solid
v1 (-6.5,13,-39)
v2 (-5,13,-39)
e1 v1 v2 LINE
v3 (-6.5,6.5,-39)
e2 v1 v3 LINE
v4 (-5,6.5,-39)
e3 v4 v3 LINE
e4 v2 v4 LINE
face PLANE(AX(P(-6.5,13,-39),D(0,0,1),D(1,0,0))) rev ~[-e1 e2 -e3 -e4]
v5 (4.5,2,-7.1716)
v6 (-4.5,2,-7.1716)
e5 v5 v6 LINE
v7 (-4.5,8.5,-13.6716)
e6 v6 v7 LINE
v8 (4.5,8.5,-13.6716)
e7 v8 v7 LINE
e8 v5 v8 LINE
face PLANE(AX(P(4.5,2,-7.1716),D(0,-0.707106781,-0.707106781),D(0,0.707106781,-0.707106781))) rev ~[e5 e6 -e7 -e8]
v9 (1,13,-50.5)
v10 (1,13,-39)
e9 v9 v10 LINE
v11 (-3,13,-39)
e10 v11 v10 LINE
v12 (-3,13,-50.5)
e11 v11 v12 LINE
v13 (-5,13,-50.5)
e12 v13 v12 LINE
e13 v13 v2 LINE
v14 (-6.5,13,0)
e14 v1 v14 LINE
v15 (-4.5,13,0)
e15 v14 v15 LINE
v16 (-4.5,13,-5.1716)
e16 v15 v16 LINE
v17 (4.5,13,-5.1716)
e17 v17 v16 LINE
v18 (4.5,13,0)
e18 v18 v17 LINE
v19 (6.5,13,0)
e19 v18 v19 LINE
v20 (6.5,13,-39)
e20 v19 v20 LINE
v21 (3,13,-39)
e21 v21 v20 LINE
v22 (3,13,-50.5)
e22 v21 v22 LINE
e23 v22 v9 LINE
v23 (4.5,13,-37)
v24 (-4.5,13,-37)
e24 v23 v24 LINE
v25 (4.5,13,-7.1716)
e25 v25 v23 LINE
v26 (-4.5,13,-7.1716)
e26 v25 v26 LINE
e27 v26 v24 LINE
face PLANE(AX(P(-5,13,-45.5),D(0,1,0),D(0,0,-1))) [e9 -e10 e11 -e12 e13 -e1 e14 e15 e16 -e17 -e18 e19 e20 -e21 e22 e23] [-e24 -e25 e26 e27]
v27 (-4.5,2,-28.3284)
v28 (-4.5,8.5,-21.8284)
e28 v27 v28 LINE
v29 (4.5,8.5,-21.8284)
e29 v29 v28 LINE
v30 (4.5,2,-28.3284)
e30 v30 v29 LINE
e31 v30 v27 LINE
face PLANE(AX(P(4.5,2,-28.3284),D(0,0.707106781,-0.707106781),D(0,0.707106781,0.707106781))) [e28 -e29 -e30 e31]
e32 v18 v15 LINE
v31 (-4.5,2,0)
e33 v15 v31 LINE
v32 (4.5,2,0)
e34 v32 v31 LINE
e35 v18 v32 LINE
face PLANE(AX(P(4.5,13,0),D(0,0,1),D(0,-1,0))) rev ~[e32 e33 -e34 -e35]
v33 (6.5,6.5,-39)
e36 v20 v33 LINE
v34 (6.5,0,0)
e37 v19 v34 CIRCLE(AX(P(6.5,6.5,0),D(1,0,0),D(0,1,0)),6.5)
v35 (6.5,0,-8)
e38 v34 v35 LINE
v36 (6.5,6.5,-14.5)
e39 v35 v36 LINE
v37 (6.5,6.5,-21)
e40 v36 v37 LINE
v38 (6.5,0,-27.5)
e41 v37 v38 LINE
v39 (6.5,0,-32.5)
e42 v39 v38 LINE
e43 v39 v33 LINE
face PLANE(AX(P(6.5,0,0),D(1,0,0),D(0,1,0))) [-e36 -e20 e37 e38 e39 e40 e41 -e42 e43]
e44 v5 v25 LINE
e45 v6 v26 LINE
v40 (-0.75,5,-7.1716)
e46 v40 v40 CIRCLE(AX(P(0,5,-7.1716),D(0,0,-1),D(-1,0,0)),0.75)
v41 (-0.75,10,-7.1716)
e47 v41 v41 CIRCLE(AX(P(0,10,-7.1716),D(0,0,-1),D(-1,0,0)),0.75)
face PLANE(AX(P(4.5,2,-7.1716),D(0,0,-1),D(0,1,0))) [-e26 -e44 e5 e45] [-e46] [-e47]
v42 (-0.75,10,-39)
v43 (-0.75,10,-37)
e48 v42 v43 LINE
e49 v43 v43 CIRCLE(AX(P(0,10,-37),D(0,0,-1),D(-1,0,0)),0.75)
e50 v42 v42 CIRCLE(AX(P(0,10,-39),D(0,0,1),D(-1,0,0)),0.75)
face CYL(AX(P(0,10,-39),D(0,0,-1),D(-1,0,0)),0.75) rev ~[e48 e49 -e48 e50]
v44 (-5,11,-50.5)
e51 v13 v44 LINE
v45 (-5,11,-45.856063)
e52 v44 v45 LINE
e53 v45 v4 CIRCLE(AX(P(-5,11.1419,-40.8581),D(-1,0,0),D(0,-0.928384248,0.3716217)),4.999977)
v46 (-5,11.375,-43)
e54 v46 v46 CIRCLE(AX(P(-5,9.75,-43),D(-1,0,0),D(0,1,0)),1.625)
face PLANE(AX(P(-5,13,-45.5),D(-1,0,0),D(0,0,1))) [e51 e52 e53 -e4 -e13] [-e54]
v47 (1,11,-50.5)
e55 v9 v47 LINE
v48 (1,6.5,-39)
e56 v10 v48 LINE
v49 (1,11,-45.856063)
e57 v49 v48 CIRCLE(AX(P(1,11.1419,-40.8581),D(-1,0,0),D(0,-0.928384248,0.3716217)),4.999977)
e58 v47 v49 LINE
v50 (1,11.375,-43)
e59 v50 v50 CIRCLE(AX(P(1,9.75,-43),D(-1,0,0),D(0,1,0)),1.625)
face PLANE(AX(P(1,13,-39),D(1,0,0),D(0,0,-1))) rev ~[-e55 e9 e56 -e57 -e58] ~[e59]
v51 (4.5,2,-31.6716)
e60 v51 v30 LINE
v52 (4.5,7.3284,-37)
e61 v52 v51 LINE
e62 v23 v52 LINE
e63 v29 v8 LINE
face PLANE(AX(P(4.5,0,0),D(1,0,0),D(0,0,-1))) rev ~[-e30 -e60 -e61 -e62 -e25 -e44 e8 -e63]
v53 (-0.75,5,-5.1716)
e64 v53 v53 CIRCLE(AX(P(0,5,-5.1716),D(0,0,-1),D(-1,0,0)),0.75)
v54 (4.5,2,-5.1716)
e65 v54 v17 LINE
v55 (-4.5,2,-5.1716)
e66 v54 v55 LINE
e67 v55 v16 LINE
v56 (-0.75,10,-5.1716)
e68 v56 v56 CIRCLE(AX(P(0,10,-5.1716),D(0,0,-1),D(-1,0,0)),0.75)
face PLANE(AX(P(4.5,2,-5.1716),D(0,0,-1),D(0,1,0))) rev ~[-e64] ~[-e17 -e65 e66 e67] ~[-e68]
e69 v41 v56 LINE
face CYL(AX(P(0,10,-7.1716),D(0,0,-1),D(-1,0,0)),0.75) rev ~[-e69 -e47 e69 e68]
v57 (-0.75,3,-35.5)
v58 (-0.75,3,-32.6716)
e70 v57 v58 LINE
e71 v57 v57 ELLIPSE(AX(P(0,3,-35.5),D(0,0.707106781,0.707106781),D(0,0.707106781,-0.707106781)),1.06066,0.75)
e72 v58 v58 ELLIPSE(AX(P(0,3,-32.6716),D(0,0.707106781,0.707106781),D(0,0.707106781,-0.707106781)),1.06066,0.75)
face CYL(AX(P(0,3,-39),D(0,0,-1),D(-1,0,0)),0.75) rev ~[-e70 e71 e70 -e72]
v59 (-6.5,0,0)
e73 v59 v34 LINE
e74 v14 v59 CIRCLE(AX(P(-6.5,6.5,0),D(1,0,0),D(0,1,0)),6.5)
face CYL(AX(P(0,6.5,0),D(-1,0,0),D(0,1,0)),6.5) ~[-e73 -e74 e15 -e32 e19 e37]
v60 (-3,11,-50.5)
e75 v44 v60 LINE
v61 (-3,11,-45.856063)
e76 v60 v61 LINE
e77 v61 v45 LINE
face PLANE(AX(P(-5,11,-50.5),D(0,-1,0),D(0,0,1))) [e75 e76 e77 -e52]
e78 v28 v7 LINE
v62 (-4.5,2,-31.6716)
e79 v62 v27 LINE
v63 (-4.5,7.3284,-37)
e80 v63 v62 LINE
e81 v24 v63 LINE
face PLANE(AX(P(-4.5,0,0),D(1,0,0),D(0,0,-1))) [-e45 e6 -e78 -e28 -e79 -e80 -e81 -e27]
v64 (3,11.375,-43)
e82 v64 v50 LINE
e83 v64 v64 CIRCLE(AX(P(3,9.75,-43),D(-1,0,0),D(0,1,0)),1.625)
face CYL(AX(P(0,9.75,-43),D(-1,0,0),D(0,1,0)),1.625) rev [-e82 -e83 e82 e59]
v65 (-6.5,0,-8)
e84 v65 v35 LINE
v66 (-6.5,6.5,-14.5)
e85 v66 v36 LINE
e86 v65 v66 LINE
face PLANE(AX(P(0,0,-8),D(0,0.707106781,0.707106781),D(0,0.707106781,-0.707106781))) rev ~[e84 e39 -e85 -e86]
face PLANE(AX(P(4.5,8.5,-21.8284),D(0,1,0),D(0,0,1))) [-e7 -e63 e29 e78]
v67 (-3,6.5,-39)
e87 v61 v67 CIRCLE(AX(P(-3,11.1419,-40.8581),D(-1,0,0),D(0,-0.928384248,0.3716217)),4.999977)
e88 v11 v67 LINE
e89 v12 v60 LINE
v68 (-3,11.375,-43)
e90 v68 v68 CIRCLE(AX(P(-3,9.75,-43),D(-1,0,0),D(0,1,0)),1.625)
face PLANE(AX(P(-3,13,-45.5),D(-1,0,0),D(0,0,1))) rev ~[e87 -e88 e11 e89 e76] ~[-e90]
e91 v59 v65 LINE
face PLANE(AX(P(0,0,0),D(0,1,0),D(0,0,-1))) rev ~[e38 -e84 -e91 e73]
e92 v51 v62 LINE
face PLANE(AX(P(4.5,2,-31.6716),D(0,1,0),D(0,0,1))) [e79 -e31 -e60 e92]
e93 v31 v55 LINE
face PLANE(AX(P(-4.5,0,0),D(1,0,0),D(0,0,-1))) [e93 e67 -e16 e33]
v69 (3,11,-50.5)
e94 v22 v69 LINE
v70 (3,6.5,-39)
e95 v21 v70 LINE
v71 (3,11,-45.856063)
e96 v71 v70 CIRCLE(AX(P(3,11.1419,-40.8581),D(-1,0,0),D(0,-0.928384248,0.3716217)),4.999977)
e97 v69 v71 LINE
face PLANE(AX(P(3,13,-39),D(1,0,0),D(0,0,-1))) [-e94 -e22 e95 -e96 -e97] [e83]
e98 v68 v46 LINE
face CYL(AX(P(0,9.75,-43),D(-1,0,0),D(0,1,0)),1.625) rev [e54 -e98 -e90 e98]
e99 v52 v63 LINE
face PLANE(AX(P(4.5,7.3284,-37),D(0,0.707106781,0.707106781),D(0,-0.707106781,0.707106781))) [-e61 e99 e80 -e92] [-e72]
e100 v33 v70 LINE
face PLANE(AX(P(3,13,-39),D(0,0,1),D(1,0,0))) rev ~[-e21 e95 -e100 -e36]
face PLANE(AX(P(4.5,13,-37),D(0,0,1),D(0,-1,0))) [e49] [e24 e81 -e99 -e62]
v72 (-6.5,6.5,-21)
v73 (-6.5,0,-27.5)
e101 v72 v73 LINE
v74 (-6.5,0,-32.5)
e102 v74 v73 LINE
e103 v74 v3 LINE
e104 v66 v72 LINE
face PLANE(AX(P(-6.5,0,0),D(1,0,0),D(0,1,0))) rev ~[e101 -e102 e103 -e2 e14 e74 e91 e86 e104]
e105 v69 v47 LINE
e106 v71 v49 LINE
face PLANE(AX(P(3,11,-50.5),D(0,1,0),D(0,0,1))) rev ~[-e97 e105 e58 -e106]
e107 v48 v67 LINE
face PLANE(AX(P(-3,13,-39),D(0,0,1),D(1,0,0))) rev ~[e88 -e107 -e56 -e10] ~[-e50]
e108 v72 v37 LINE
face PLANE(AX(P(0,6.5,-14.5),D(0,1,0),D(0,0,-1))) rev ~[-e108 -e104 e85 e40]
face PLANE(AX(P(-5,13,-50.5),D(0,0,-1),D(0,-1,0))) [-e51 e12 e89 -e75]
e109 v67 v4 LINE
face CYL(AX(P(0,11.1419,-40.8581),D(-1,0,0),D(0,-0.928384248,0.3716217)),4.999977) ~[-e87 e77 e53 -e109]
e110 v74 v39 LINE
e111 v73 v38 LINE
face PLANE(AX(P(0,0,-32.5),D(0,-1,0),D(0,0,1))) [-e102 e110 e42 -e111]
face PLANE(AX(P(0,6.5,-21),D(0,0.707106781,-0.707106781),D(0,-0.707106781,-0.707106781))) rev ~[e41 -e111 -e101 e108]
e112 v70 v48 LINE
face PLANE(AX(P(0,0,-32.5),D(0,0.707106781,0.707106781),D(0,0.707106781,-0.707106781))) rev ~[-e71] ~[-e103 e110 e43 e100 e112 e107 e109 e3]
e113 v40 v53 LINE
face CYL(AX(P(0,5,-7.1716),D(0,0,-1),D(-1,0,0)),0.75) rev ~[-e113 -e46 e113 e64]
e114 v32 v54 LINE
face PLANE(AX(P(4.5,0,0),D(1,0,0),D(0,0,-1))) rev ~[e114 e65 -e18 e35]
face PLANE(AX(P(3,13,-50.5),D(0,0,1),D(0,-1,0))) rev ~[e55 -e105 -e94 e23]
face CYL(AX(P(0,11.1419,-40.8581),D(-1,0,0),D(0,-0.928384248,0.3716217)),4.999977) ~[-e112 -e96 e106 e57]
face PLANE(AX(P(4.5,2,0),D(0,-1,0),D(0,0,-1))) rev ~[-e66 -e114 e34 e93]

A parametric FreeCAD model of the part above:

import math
import FreeCAD as App
import Part
import Sketcher
from FreeCAD import Vector
Q = App.Units.Quantity


def add_polygon(sketch, points):
    """Adds a closed chain of lines whose ends are joined by coincident constraints."""
    first, n = sketch.GeometryCount, len(points)
    for a, b in zip(points, points[1:] + points[:1]):
        sketch.addGeometry(Part.LineSegment(App.Vector(*a, 0), App.Vector(*b, 0)), False)
    for i in range(n):
        sketch.addConstraint(Sketcher.Constraint("Coincident", first + i, 2, first + (i + 1) % n, 1))

doc = App.newDocument("Part")
body = doc.addObject("PartDesign::Body", "Body")

sketch1 = body.newObject("Sketcher::SketchObject", "Sketch")
sketch1.AttachmentSupport = (doc.getObject("YZ_Plane"), [""])
sketch1.MapMode = "FlatFace"
sketch1.addGeometry(Part.ArcOfCircle(Part.Circle(Vector(6.5, 0, 0), Vector(0, 0, 1), 6.5), math.radians(0), math.radians(180)), False)
sketch1.addGeometry(Part.LineSegment(Vector(0, 0, 0), Vector(0, -8, 0)), False)
sketch1.addGeometry(Part.LineSegment(Vector(0, -8, 0), Vector(6.5, -14.5, 0)), False)
sketch1.addGeometry(Part.LineSegment(Vector(6.5, -14.5, 0), Vector(6.5, -21, 0)), False)
sketch1.addGeometry(Part.LineSegment(Vector(6.5, -21, 0), Vector(0, -27.5, 0)), False)
sketch1.addGeometry(Part.LineSegment(Vector(0, -27.5, 0), Vector(0, -32.5, 0)), False)
sketch1.addGeometry(Part.LineSegment(Vector(0, -32.5, 0), Vector(6.5, -39, 0)), False)
sketch1.addGeometry(Part.ArcOfCircle(Part.Circle(Vector(11.1, -40.9, 0), Vector(0, 0, 1), 5), math.radians(158), math.radians(292)), False)
sketch1.addGeometry(Part.LineSegment(Vector(13, -45.5, 0), Vector(13, 0, 0)), False)
sketch1.addGeometry(Part.Circle(Vector(9.8, -43, 0), Vector(0, 0, 1), 1.6), False)
sketch1.addConstraint(Sketcher.Constraint("Tangent", 0, 2, 1, 1))
sketch1.addConstraint(Sketcher.Constraint("Coincident", 1, 2, 2, 1))
sketch1.addConstraint(Sketcher.Constraint("Coincident", 2, 2, 3, 1))
sketch1.addConstraint(Sketcher.Constraint("Coincident", 3, 2, 4, 1))
sketch1.addConstraint(Sketcher.Constraint("Coincident", 4, 2, 5, 1))
sketch1.addConstraint(Sketcher.Constraint("Coincident", 5, 2, 6, 1))
sketch1.addConstraint(Sketcher.Constraint("Coincident", 6, 2, 7, 1))
sketch1.addConstraint(Sketcher.Constraint("Coincident", 7, 2, 8, 1))
sketch1.addConstraint(Sketcher.Constraint("Tangent", 8, 2, 0, 1))
sketch1.addConstraint(Sketcher.Constraint("Vertical", 1))
sketch1.addConstraint(Sketcher.Constraint("Vertical", 3))
sketch1.addConstraint(Sketcher.Constraint("Vertical", 5))
sketch1.addConstraint(Sketcher.Constraint("Vertical", 8))
sketch1.addConstraint(Sketcher.Constraint("Coincident", 0, 2, -1, 1))
sketch1.addConstraint(Sketcher.Constraint("PointOnObject", 4, 2, -2))
sketch1.addConstraint(Sketcher.Constraint("Perpendicular", 2, 4))
sketch1.addConstraint(Sketcher.Constraint("Perpendicular", 4, 6))
sketch1.addConstraint(Sketcher.Constraint("Vertical", 0, 3, 2, 2))
sketch1.addConstraint(Sketcher.Constraint("Vertical", 3, 2, 6, 2))
sketch1.addConstraint(Sketcher.Constraint("Equal", 2, 4))
sketch1.addConstraint(Sketcher.Constraint("Radius", 7, Q("5 mm")))
sketch1.addConstraint(Sketcher.Constraint("Radius", 0, Q("6.5 mm")))
sketch1.addConstraint(Sketcher.Constraint("Diameter", 9, Q("3.25 mm")))
sketch1.addConstraint(Sketcher.Constraint("DistanceY", 1, 2, 1, 1, Q("8 mm")))
sketch1.addConstraint(Sketcher.Constraint("DistanceY", 5, 2, 5, 1, Q("5 mm")))
sketch1.addConstraint(Sketcher.Constraint("DistanceY", 3, 2, 3, 1, Q("6.5 mm")))
sketch1.addConstraint(Sketcher.Constraint("DistanceY", 9, 3, 6, 2, Q("4 mm")))
sketch1.addConstraint(Sketcher.Constraint("DistanceY", 7, 2, 5, 2, Q("13 mm")))
sketch1.addConstraint(Sketcher.Constraint("DistanceX", 0, 3, 9, 3, Q("3.25 mm")))
pad1 = body.newObject("PartDesign::Pad", "Pad")
pad1.Profile = sketch1
pad1.Length = 13
pad1.Midplane = True

sketch2 = body.newObject("Sketcher::SketchObject", "Sketch001")
sketch2.AttachmentSupport = (doc.getObject("XZ_Plane"), [""])
sketch2.MapMode = "FlatFace"
sketch2.AttachmentOffset = App.Placement(Vector(0, 0, -13), App.Rotation())
add_polygon(sketch2, [(-6.5, -46), (-6.5, -39), (-5, -39), (-5, -46)])
add_polygon(sketch2, [(3, -46), (3, -39), (6.5, -39), (6.5, -46)])
add_polygon(sketch2, [(-3, -46), (-3, -39), (1, -39), (1, -46)])
sketch2.addConstraint(Sketcher.Constraint("Vertical", 0))
sketch2.addConstraint(Sketcher.Constraint("Horizontal", 1))
sketch2.addConstraint(Sketcher.Constraint("Vertical", 2))
sketch2.addConstraint(Sketcher.Constraint("Horizontal", 3))
sketch2.addConstraint(Sketcher.Constraint("Vertical", 4))
sketch2.addConstraint(Sketcher.Constraint("Horizontal", 5))
sketch2.addConstraint(Sketcher.Constraint("Vertical", 6))
sketch2.addConstraint(Sketcher.Constraint("Horizontal", 7))
sketch2.addConstraint(Sketcher.Constraint("Vertical", 8))
sketch2.addConstraint(Sketcher.Constraint("Horizontal", 9))
sketch2.addConstraint(Sketcher.Constraint("Vertical", 10))
sketch2.addConstraint(Sketcher.Constraint("Horizontal", 11))
sketch2.addConstraint(Sketcher.Constraint("Symmetric", 0, 2, 5, 2, -2))
sketch2.addConstraint(Sketcher.Constraint("Symmetric", 4, 2, 8, 2, -2))
sketch2.addConstraint(Sketcher.Constraint("Horizontal", 3, 2, 6, 2))
sketch2.addConstraint(Sketcher.Constraint("Horizontal", 7, 2, 10, 2))
sketch2.addConstraint(Sketcher.Constraint("DistanceX", 9, 1, 9, 2, Q("4 mm")))
sketch2.addConstraint(Sketcher.Constraint("DistanceY", 0, 1, 0, 2, Q("7 mm")))
sketch2.addConstraint(Sketcher.Constraint("DistanceX", 1, 1, 1, 2, Q("1.5 mm")))
sketch2.addConstraint(Sketcher.Constraint("DistanceX", 1, 2, 8, 2, Q("2 mm")))
sketch2.addConstraint(Sketcher.Constraint("DistanceX", 9, 2, 4, 2, Q("2 mm")))
sketch2.addConstraint(Sketcher.Constraint("DistanceY", 0, 2, -1, 1, Q("39 mm")))
pocket1 = body.newObject("PartDesign::Pocket", "Pocket")
pocket1.Profile = sketch2
pocket1.Length = 13
pocket1.Reversed = True

sketch3 = body.newObject("Sketcher::SketchObject", "Sketch002")
sketch3.AttachmentSupport = (doc.getObject("YZ_Plane"), [""])
sketch3.MapMode = "FlatFace"
sketch3.AttachmentOffset = App.Placement(Vector(0, 0, 4.5), App.Rotation())
add_polygon(sketch3, [(13, -5.2), (13, 0), (2, 0), (2, -5.2)])
add_polygon(sketch3, [(13, -37), (13, -7.2), (2, -7.2), (8.5, -13.7), (8.5, -21.8), (2, -28.3), (2, -31.7), (7.3, -37)])
sketch3.addConstraint(Sketcher.Constraint("Vertical", 0))
sketch3.addConstraint(Sketcher.Constraint("Horizontal", 1))
sketch3.addConstraint(Sketcher.Constraint("Vertical", 2))
sketch3.addConstraint(Sketcher.Constraint("Horizontal", 3))
sketch3.addConstraint(Sketcher.Constraint("Vertical", 4))
sketch3.addConstraint(Sketcher.Constraint("Horizontal", 5))
sketch3.addConstraint(Sketcher.Constraint("Vertical", 7))
sketch3.addConstraint(Sketcher.Constraint("Vertical", 9))
sketch3.addConstraint(Sketcher.Constraint("Horizontal", 11))
sketch3.addConstraint(Sketcher.Constraint("PointOnObject", 0, 2, -1))
sketch3.addConstraint(Sketcher.Constraint("Perpendicular", 6, 8))
sketch3.addConstraint(Sketcher.Constraint("Perpendicular", 8, 10))
sketch3.addConstraint(Sketcher.Constraint("Vertical", 3, 2, 4, 2))
sketch3.addConstraint(Sketcher.Constraint("Vertical", 2, 2, 5, 2))
sketch3.addConstraint(Sketcher.Constraint("Vertical", 5, 2, 8, 2))
sketch3.addConstraint(Sketcher.Constraint("Equal", 6, 8))
sketch3.addConstraint(Sketcher.Constraint("DistanceX", 1, 2, 1, 1, Q("11 mm")))
sketch3.addConstraint(Sketcher.Constraint("DistanceX", -1, 1, 1, 2, Q("2 mm")))
sketch3.addConstraint(Sketcher.Constraint("DistanceY", 4, 2, 3, 2, Q("2 mm")))
sketch3.addConstraint(Sketcher.Constraint("DistanceY", 10, 2, -1, 1, Q("37 mm")))
sketch3.addConstraint(Sketcher.Constraint("DistanceY", 9, 2, 6, 2, Q("18 mm")))
sketch3.addConstraint(Sketcher.Constraint("DistanceX", -1, 1, 6, 2, Q("8.5 mm")))
sketch3.addConstraint(Sketcher.Constraint("DistanceX", 11, 1, 11, 2, Q("5.6716 mm")))
sketch3.addConstraint(Sketcher.Constraint("DistanceY", 7, 2, 7, 1, Q("8.1568 mm")))
pocket2 = body.newObject("PartDesign::Pocket", "Pocket001")
pocket2.Profile = sketch3
pocket2.Length = 9

sketch4 = body.newObject("Sketcher::SketchObject", "Sketch003")
sketch4.AttachmentSupport = (doc.getObject("XY_Plane"), [""])
sketch4.MapMode = "FlatFace"
sketch4.AttachmentOffset = App.Placement(Vector(0, 0, -7.1716), App.Rotation())
sketch4.addGeometry(Part.Circle(Vector(0, 10, 0), Vector(0, 0, 1), 0.8), False)
sketch4.addGeometry(Part.Circle(Vector(0, 5, 0), Vector(0, 0, 1), 0.8), False)
sketch4.addConstraint(Sketcher.Constraint("Equal", 0, 1))
sketch4.addConstraint(Sketcher.Constraint("PointOnObject", 0, 3, -2))
sketch4.addConstraint(Sketcher.Constraint("PointOnObject", 1, 3, -2))
sketch4.addConstraint(Sketcher.Constraint("Diameter", 0, Q("1.5 mm")))
sketch4.addConstraint(Sketcher.Constraint("DistanceY", -1, 1, 0, 3, Q("10 mm")))
sketch4.addConstraint(Sketcher.Constraint("DistanceY", -1, 1, 1, 3, Q("5 mm")))
pocket3 = body.newObject("PartDesign::Pocket", "Pocket002")
pocket3.Profile = sketch4
pocket3.Length = 2
pocket3.Reversed = True

sketch5 = body.newObject("Sketcher::SketchObject", "Sketch004")
sketch5.AttachmentSupport = (doc.getObject("XY_Plane"), [""])
sketch5.MapMode = "FlatFace"
sketch5.AttachmentOffset = App.Placement(Vector(0, 0, -39), App.Rotation())
sketch5.addGeometry(Part.Circle(Vector(0, 3, 0), Vector(0, 0, 1), 0.8), False)
sketch5.addGeometry(Part.Circle(Vector(0, 10, 0), Vector(0, 0, 1), 0.8), False)
sketch5.addConstraint(Sketcher.Constraint("Equal", 0, 1))
sketch5.addConstraint(Sketcher.Constraint("PointOnObject", 0, 3, -2))
sketch5.addConstraint(Sketcher.Constraint("PointOnObject", 1, 3, -2))
sketch5.addConstraint(Sketcher.Constraint("Diameter", 0, Q("1.5 mm")))
sketch5.addConstraint(Sketcher.Constraint("DistanceY", -1, 1, 0, 3, Q("3 mm")))
sketch5.addConstraint(Sketcher.Constraint("DistanceY", -1, 1, 1, 3, Q("10 mm")))
pocket4 = body.newObject("PartDesign::Pocket", "Pocket003")
pocket4.Profile = sketch5
pocket4.Length = 9
pocket4.Reversed = True

sketch6 = body.newObject("Sketcher::SketchObject", "Sketch005")
sketch6.AttachmentSupport = (doc.getObject("YZ_Plane"), [""])
sketch6.MapMode = "FlatFace"
sketch6.AttachmentOffset = App.Placement(Vector(0, 0, 3), App.Rotation())
add_polygon(sketch6, [(13, -50.5), (13, -45.5), (11, -45.5), (11, -50.5)])
sketch6.addConstraint(Sketcher.Constraint("Vertical", 0))
sketch6.addConstraint(Sketcher.Constraint("Horizontal", 1))
sketch6.addConstraint(Sketcher.Constraint("Vertical", 2))
sketch6.addConstraint(Sketcher.Constraint("Horizontal", 3))
sketch6.addConstraint(Sketcher.Constraint("DistanceX", 1, 2, 1, 1, Q("2 mm")))
sketch6.addConstraint(Sketcher.Constraint("DistanceY", 0, 1, 0, 2, Q("5 mm")))
sketch6.addConstraint(Sketcher.Constraint("DistanceX", -1, 1, 0, 2, Q("13 mm")))
sketch6.addConstraint(Sketcher.Constraint("DistanceY", 0, 2, -1, 1, Q("45.5 mm")))
pad2 = body.newObject("PartDesign::Pad", "Pad001")
pad2.Profile = sketch6
pad2.Length = 2
pad2.Reversed = True

sketch7 = body.newObject("Sketcher::SketchObject", "Sketch006")
sketch7.AttachmentSupport = (doc.getObject("YZ_Plane"), [""])
sketch7.MapMode = "FlatFace"
sketch7.AttachmentOffset = App.Placement(Vector(0, 0, -5), App.Rotation())
add_polygon(sketch7, [(13, -50.5), (11, -50.5), (11, -45.5), (13, -45.5)])
sketch7.addConstraint(Sketcher.Constraint("Horizontal", 0))
sketch7.addConstraint(Sketcher.Constraint("Vertical", 1))
sketch7.addConstraint(Sketcher.Constraint("Horizontal", 2))
sketch7.addConstraint(Sketcher.Constraint("Vertical", 3))
sketch7.addConstraint(Sketcher.Constraint("DistanceX", 0, 2, 0, 1, Q("2 mm")))
sketch7.addConstraint(Sketcher.Constraint("DistanceY", 1, 1, 1, 2, Q("5 mm")))
sketch7.addConstraint(Sketcher.Constraint("DistanceX", -1, 1, 0, 2, Q("11 mm")))
sketch7.addConstraint(Sketcher.Constraint("DistanceY", 0, 2, -1, 1, Q("50.5 mm")))
pad3 = body.newObject("PartDesign::Pad", "Pad002")
pad3.Profile = sketch7
pad3.Length = 2

doc.recompute()
